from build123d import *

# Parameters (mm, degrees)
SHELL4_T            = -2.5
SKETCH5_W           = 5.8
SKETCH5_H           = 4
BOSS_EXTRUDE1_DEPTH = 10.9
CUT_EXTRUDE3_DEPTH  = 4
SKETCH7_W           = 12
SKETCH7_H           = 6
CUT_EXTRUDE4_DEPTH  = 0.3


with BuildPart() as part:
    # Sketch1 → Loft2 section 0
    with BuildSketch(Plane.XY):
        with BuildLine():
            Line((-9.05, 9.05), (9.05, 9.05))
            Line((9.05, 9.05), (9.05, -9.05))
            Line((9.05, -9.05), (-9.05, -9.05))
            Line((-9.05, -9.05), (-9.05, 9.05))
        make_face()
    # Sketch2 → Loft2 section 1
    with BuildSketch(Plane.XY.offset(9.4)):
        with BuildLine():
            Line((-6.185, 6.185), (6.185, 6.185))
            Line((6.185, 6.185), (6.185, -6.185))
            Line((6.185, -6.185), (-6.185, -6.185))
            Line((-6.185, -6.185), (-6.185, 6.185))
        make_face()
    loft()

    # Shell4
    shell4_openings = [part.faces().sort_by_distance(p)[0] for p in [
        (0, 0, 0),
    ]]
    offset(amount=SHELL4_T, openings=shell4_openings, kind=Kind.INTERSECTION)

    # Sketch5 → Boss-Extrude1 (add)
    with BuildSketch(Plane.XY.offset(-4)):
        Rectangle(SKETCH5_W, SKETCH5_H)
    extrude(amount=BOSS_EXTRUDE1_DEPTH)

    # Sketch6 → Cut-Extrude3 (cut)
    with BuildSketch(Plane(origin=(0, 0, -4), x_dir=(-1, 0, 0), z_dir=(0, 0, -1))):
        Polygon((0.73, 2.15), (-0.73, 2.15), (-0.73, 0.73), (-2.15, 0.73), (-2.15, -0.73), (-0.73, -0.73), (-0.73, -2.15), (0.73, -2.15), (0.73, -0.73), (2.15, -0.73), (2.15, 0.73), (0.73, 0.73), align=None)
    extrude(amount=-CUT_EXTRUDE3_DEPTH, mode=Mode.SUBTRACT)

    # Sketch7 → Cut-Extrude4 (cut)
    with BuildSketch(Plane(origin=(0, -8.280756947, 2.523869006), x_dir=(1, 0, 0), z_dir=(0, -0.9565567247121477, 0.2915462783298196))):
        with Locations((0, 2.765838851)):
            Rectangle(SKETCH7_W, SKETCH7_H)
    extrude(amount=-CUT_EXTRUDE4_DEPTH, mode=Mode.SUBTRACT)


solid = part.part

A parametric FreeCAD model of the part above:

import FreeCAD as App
import Part
import Sketcher


def faces_at(feature, points):
    """Names of the faces that lie closest to the given points."""
    faces = feature.Shape.Faces
    near = lambda p: min(range(len(faces)), key=lambda i: faces[i].distToShape(Part.Vertex(*p))[0])
    return sorted({f"Face{near(p) + 1}" for p in points})


def add_polygon(sketch, points):
    """Adds a closed chain of lines whose ends are joined by coincident constraints."""
    first, n = sketch.GeometryCount, len(points)
    for a, b in zip(points, points[1:] + points[:1]):
        sketch.addGeometry(Part.LineSegment(App.Vector(*a, 0), App.Vector(*b, 0)), False)
    for i in range(n):
        sketch.addConstraint(Sketcher.Constraint("Coincident", first + i, 2, first + (i + 1) % n, 1))

doc = App.newDocument("Part")
body = doc.addObject("PartDesign::Body", "Body")

sketch1 = body.newObject("Sketcher::SketchObject", "Sketch")
sketch1.AttachmentSupport = (doc.getObject("XY_Plane"), [""])
sketch1.MapMode = "FlatFace"
add_polygon(sketch1, [(9, 9), (-9, 9), (-9, -9), (9, -9)])
sketch1.addConstraint([
    Sketcher.Constraint("Horizontal", 0),
    Sketcher.Constraint("Vertical", 1),
    Sketcher.Constraint("Horizontal", 2),
    Sketcher.Constraint("Vertical", 3),
    Sketcher.Constraint("Symmetric", 0, 2, 2, 2, -1, 1),
    Sketcher.Constraint("Equal", 2, 1),
    Sketcher.Constraint("DistanceX", 0, 2, 0, 1, 18.1),
])

sketch2 = body.newObject("Sketcher::SketchObject", "Sketch001")
sketch2.AttachmentSupport = (doc.getObject("XY_Plane"), [""])
sketch2.MapMode = "FlatFace"
sketch2.AttachmentOffset = App.Placement(App.Vector(0, 0, 9.4), App.Rotation())
add_polygon(sketch2, [(6, 6), (-6, 6), (-6, -6), (6, -6)])
sketch2.addConstraint([
    Sketcher.Constraint("Horizontal", 0),
    Sketcher.Constraint("Vertical", 1),
    Sketcher.Constraint("Horizontal", 2),
    Sketcher.Constraint("Vertical", 3),
    Sketcher.Constraint("Symmetric", 0, 2, 2, 2, -1, 1),
    Sketcher.Constraint("Equal", 2, 1),
    Sketcher.Constraint("DistanceX", 0, 2, 0, 1, 12.37),
])

additiveloft = body.newObject("PartDesign::AdditiveLoft", "AdditiveLoft")
additiveloft.Profile = sketch1
additiveloft.Sections = [sketch2]
doc.recompute()

thickness = body.newObject("PartDesign::Thickness", "Thickness")
thickness.Base = (additiveloft, faces_at(additiveloft, [(0, 0, 0)]))
thickness.Value = 2.5
thickness.Reversed = True
thickness.Join = "Intersection"

sketch3 = body.newObject("Sketcher::SketchObject", "Sketch002")
sketch3.AttachmentSupport = (doc.getObject("XY_Plane"), [""])
sketch3.MapMode = "FlatFace"
sketch3.AttachmentOffset = App.Placement(App.Vector(0, 0, -4), App.Rotation())
add_polygon(sketch3, [(-2.9, 2), (-2.9, -2), (2.9, -2), (2.9, 2)])
sketch3.addConstraint([
    Sketcher.Constraint("Vertical", 0),
    Sketcher.Constraint("Horizontal", 1),
    Sketcher.Constraint("Vertical", 2),
    Sketcher.Constraint("Horizontal", 3),
    Sketcher.Constraint("Symmetric", 0, 2, 2, 2, -1, 1),
    Sketcher.Constraint("DistanceY", 0, 2, 0, 1, 4.0),
    Sketcher.Constraint("DistanceX", 1, 1, 1, 2, 5.8),
])
pad1 = body.newObject("PartDesign::Pad", "Pad")
pad1.Profile = sketch3
pad1.Length = 10.9

sketch4 = body.newObject("Sketcher::SketchObject", "Sketch003")
sketch4.AttachmentSupport = (doc.getObject("XY_Plane"), [""])
sketch4.MapMode = "FlatFace"
sketch4.AttachmentOffset = App.Placement(App.Vector(0, 0, -4), App.Rotation())
add_polygon(sketch4, [(-0.7, 2.1), (0.7, 2.1), (0.7, 0.7), (2.1, 0.7), (2.1, -0.7), (0.7, -0.7), (0.7, -2.1), (-0.7, -2.1), (-0.7, -0.7), (-2.1, -0.7), (-2.1, 0.7), (-0.7, 0.7)])
sketch4.addConstraint([
    Sketcher.Constraint("Horizontal", 0),
    Sketcher.Constraint("Vertical", 1),
    Sketcher.Constraint("Horizontal", 2),
    Sketcher.Constraint("Vertical", 3),
    Sketcher.Constraint("Horizontal", 4),
    Sketcher.Constraint("Vertical", 5),
    Sketcher.Constraint("Horizontal", 6),
    Sketcher.Constraint("Vertical", 7),
    Sketcher.Constraint("Horizontal", 8),
    Sketcher.Constraint("Vertical", 9),
    Sketcher.Constraint("Horizontal", 10),
    Sketcher.Constraint("Vertical", 11),
    Sketcher.Constraint("Symmetric", 0, 2, 6, 2, -1, 1),
    Sketcher.Constraint("Symmetric", 2, 2, 8, 2, -1, 1),
    Sketcher.Constraint("Symmetric", 4, 2, 10, 2, -1, 1),
    Sketcher.Constraint("Symmetric", 4, 2, 7, 2, -2),
    Sketcher.Constraint("Equal", 10, 1),
    Sketcher.Constraint("Equal", 6, 3),
    Sketcher.Constraint("DistanceX", 0, 1, 0, 2, 1.46),
    Sketcher.Constraint("DistanceX", 2, 1, 2, 2, 1.42),
])
pocket1 = body.newObject("PartDesign::Pocket", "Pocket")
pocket1.Profile = sketch4
pocket1.Length = 4
pocket1.Reversed = True

sketch5 = body.newObject("Sketcher::SketchObject", "Sketch004")
sketch5.Placement = App.Placement(App.Vector(0, -8.280757, 2.523869), App.Rotation(App.Vector(1, 0, 0), App.Vector(0, 0.291546278, 0.956556725), App.Vector(0, -0.956556725, 0.291546278), "ZXY"))
add_polygon(sketch5, [(-6, 6), (-6, 0), (6, 0), (6, 6)])
sketch5.addConstraint([
    Sketcher.Constraint("Vertical", 0),
    Sketcher.Constraint("Horizontal", 1),
    Sketcher.Constraint("Vertical", 2),
    Sketcher.Constraint("Horizontal", 3),
    Sketcher.Constraint("DistanceX", 1, 1, 1, 2, 12.0),
    Sketcher.Constraint("DistanceY", 0, 2, 0, 1, 6.0),
    Sketcher.Constraint("DistanceX", 0, 2, -1, 1, 6.0),
    Sketcher.Constraint("DistanceY", 0, 2, -1, 1, 0.234161),
])
pocket2 = body.newObject("PartDesign::Pocket", "Pocket001")
pocket2.Profile = sketch5
pocket2.Length = 0.3

doc.recompute()
